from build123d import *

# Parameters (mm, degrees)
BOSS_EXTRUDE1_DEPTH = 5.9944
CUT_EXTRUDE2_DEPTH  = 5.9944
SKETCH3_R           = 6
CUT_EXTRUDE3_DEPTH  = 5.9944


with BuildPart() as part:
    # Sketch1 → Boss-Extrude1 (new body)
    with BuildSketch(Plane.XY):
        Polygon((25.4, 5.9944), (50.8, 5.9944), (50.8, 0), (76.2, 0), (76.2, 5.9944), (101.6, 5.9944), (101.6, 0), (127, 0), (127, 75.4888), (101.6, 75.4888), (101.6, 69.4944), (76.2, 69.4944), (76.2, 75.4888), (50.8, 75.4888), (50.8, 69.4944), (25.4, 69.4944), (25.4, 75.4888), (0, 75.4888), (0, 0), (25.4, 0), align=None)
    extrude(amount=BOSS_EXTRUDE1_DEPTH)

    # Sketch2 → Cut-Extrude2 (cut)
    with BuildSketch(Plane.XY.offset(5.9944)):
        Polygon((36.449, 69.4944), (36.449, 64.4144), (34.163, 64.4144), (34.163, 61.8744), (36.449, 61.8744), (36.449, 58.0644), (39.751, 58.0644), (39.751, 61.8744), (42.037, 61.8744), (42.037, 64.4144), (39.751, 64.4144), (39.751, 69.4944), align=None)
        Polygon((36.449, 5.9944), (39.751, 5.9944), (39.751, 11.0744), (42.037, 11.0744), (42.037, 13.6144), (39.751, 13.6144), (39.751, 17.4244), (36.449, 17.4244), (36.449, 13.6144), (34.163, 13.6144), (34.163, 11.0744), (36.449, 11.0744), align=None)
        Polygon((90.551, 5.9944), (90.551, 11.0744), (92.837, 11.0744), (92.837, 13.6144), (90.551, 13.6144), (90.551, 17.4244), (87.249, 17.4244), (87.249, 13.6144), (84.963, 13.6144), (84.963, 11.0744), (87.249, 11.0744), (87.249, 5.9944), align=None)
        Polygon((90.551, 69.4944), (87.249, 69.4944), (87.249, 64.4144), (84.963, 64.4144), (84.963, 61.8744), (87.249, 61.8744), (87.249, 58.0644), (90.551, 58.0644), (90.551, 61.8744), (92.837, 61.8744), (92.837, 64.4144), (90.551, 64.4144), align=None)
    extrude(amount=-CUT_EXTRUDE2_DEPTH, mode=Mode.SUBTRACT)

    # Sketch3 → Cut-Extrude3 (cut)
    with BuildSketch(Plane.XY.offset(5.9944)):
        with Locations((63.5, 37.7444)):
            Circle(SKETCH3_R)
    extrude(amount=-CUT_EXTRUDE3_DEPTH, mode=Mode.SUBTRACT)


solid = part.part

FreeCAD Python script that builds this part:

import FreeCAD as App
import Part
import Sketcher

V = App.Vector
Q = App.Units.Quantity


def add_polygon(sketch, points):
    """Adds a closed chain of lines whose ends are joined by coincident constraints."""
    first, n = sketch.GeometryCount, len(points)
    for a, b in zip(points, points[1:] + points[:1]):
        sketch.addGeometry(Part.LineSegment(App.Vector(*a, 0), App.Vector(*b, 0)), False)
    for i in range(n):
        sketch.addConstraint(Sketcher.Constraint("Coincident", first + i, 2, first + (i + 1) % n, 1))

doc = App.newDocument("Part")
body = doc.addObject("PartDesign::Body", "Body")

sketch1 = body.newObject("Sketcher::SketchObject", "Sketch")
sketch1.AttachmentSupport = (doc.getObject("XY_Plane"), [""])
sketch1.MapMode = "FlatFace"
add_polygon(sketch1, [(25, 6), (51, 6), (51, 0), (76, 0), (76, 6), (102, 6), (102, 0), (127, 0), (127, 75), (102, 75), (102, 69), (76, 69), (76, 75), (51, 75), (51, 69), (25, 69), (25, 75), (0, 75), (0, 0), (25, 0)])
sketch1.addConstraint([
    Sketcher.Constraint("Horizontal", 0),
    Sketcher.Constraint("Vertical", 1),
    Sketcher.Constraint("Horizontal", 2),
    Sketcher.Constraint("Vertical", 3),
    Sketcher.Constraint("Horizontal", 4),
    Sketcher.Constraint("Vertical", 5),
    Sketcher.Constraint("Horizontal", 6),
    Sketcher.Constraint("Vertical", 7),
    Sketcher.Constraint("Horizontal", 8),
    Sketcher.Constraint("Vertical", 9),
    Sketcher.Constraint("Horizontal", 10),
    Sketcher.Constraint("Vertical", 11),
    Sketcher.Constraint("Horizontal", 12),
    Sketcher.Constraint("Vertical", 13),
    Sketcher.Constraint("Horizontal", 14),
    Sketcher.Constraint("Vertical", 15),
    Sketcher.Constraint("Horizontal", 16),
    Sketcher.Constraint("Vertical", 17),
    Sketcher.Constraint("Horizontal", 18),
    Sketcher.Constraint("Vertical", 19),
    Sketcher.Constraint("Coincident", 17, 2, -1, 1),
    Sketcher.Constraint("PointOnObject", 1, 2, -1),
    Sketcher.Constraint("PointOnObject", 5, 2, -1),
    Sketcher.Constraint("Horizontal", 0, 2, 3, 2),
    Sketcher.Constraint("Horizontal", 8, 2, 11, 2),
    Sketcher.Constraint("Horizontal", 10, 2, 13, 2),
    Sketcher.Constraint("Horizontal", 12, 2, 15, 2),
    Sketcher.Constraint("Vertical", 5, 2, 8, 2),
    Sketcher.Constraint("Vertical", 3, 2, 10, 2),
    Sketcher.Constraint("Vertical", 1, 2, 12, 2),
    Sketcher.Constraint("Vertical", 15, 2, 18, 2),
    Sketcher.Constraint("Equal", 0, 2),
    Sketcher.Constraint("Equal", 2, 4),
    Sketcher.Constraint("Equal", 4, 6),
    Sketcher.Constraint("Equal", 14, 16),
    Sketcher.Constraint("Equal", 5, 9),
    Sketcher.Constraint("DistanceX", 0, 1, 0, 2, Q("1 in")),
    Sketcher.Constraint("DistanceY", 4, 2, 9, 2, Q("2.5 in")),
    Sketcher.Constraint("DistanceY", 1, 2, 1, 1, Q("0.236 in")),
])
pad1 = body.newObject("PartDesign::Pad", "Pad")
pad1.Profile = sketch1
pad1.Length = Q("0.236 in")

sketch2 = body.newObject("Sketcher::SketchObject", "Sketch001")
sketch2.AttachmentSupport = (doc.getObject("XY_Plane"), [""])
sketch2.MapMode = "FlatFace"
sketch2.AttachmentOffset = App.Placement(V(0, 0, 0.236 * 25.4), App.Rotation())
add_polygon(sketch2, [(36.4, 69.5), (36.4, 64.4), (34.2, 64.4), (34.2, 61.9), (36.4, 61.9), (36.4, 58.1), (39.8, 58.1), (39.8, 61.9), (42, 61.9), (42, 64.4), (39.8, 64.4), (39.8, 69.5)])
add_polygon(sketch2, [(36.4, 6), (39.8, 6), (39.8, 11.1), (42, 11.1), (42, 13.6), (39.8, 13.6), (39.8, 17.4), (36.4, 17.4), (36.4, 13.6), (34.2, 13.6), (34.2, 11.1), (36.4, 11.1)])
add_polygon(sketch2, [(90.6, 6), (90.6, 11.1), (92.8, 11.1), (92.8, 13.6), (90.6, 13.6), (90.6, 17.4), (87.2, 17.4), (87.2, 13.6), (85, 13.6), (85, 11.1), (87.2, 11.1), (87.2, 6)])
add_polygon(sketch2, [(90.6, 69.5), (87.2, 69.5), (87.2, 64.4), (85, 64.4), (85, 61.9), (87.2, 61.9), (87.2, 58.1), (90.6, 58.1), (90.6, 61.9), (92.8, 61.9), (92.8, 64.4), (90.6, 64.4)])
sketch2.addConstraint([
    Sketcher.Constraint("Vertical", 0),
    Sketcher.Constraint("Horizontal", 1),
    Sketcher.Constraint("Vertical", 2),
    Sketcher.Constraint("Horizontal", 3),
    Sketcher.Constraint("Vertical", 4),
    Sketcher.Constraint("Horizontal", 5),
    Sketcher.Constraint("Vertical", 6),
    Sketcher.Constraint("Horizontal", 7),
    Sketcher.Constraint("Vertical", 8),
    Sketcher.Constraint("Horizontal", 9),
    Sketcher.Constraint("Vertical", 10),
    Sketcher.Constraint("Horizontal", 11),
    Sketcher.Constraint("Horizontal", 12),
    Sketcher.Constraint("Vertical", 13),
    Sketcher.Constraint("Horizontal", 14),
    Sketcher.Constraint("Vertical", 15),
    Sketcher.Constraint("Horizontal", 16),
    Sketcher.Constraint("Vertical", 17),
    Sketcher.Constraint("Horizontal", 18),
    Sketcher.Constraint("Vertical", 19),
    Sketcher.Constraint("Horizontal", 20),
    Sketcher.Constraint("Vertical", 21),
    Sketcher.Constraint("Horizontal", 22),
    Sketcher.Constraint("Vertical", 23),
    Sketcher.Constraint("Vertical", 24),
    Sketcher.Constraint("Horizontal", 25),
    Sketcher.Constraint("Vertical", 26),
    Sketcher.Constraint("Horizontal", 27),
    Sketcher.Constraint("Vertical", 28),
    Sketcher.Constraint("Horizontal", 29),
    Sketcher.Constraint("Vertical", 30),
    Sketcher.Constraint("Horizontal", 31),
    Sketcher.Constraint("Vertical", 32),
    Sketcher.Constraint("Horizontal", 33),
    Sketcher.Constraint("Vertical", 34),
    Sketcher.Constraint("Horizontal", 35),
    Sketcher.Constraint("Horizontal", 36),
    Sketcher.Constraint("Vertical", 37),
    Sketcher.Constraint("Horizontal", 38),
    Sketcher.Constraint("Vertical", 39),
    Sketcher.Constraint("Horizontal", 40),
    Sketcher.Constraint("Vertical", 41),
    Sketcher.Constraint("Horizontal", 42),
    Sketcher.Constraint("Vertical", 43),
    Sketcher.Constraint("Horizontal", 44),
    Sketcher.Constraint("Vertical", 45),
    Sketcher.Constraint("Horizontal", 46),
    Sketcher.Constraint("Vertical", 47),
    Sketcher.Constraint("Horizontal", 3, 2, 6, 2),
    Sketcher.Constraint("Horizontal", 1, 2, 8, 2),
    Sketcher.Constraint("Horizontal", 16, 2, 19, 2),
    Sketcher.Constraint("Horizontal", 14, 2, 21, 2),
    Sketcher.Constraint("Horizontal", 22, 2, 24, 2),
    Sketcher.Constraint("Horizontal", 20, 2, 26, 2),
    Sketcher.Constraint("Horizontal", 18, 2, 28, 2),
    Sketcher.Constraint("Horizontal", 27, 2, 30, 2),
    Sketcher.Constraint("Horizontal", 25, 2, 32, 2),
    Sketcher.Constraint("Horizontal", 23, 2, 34, 2),
    Sketcher.Constraint("Horizontal", 11, 2, 36, 2),
    Sketcher.Constraint("Horizontal", 9, 2, 37, 2),
    Sketcher.Constraint("Horizontal", 7, 2, 39, 2),
    Sketcher.Constraint("Horizontal", 5, 2, 41, 2),
    Sketcher.Constraint("Horizontal", 40, 2, 43, 2),
    Sketcher.Constraint("Horizontal", 38, 2, 45, 2),
    Sketcher.Constraint("Vertical", 0, 2, 3, 2),
    Sketcher.Constraint("Vertical", 6, 2, 9, 2),
    Sketcher.Constraint("Vertical", 10, 2, 12, 2),
    Sketcher.Constraint("Vertical", 8, 2, 14, 2),
    Sketcher.Constraint("Vertical", 13, 2, 16, 2),
    Sketcher.Constraint("Vertical", 11, 2, 18, 2),
    Sketcher.Constraint("Vertical", 2, 2, 20, 2),
    Sketcher.Constraint("Vertical", 19, 2, 22, 2),
    Sketcher.Constraint("Vertical", 24, 2, 27, 2),
    Sketcher.Constraint("Vertical", 30, 2, 33, 2),
    Sketcher.Constraint("Vertical", 34, 2, 36, 2),
    Sketcher.Constraint("Vertical", 32, 2, 38, 2),
    Sketcher.Constraint("Vertical", 37, 2, 40, 2),
    Sketcher.Constraint("Vertical", 35, 2, 42, 2),
    Sketcher.Constraint("Vertical", 26, 2, 44, 2),
    Sketcher.Constraint("Vertical", 43, 2, 46, 2),
    Sketcher.Constraint("Equal", 3, 7),
    Sketcher.Constraint("Equal", 22, 25),
    Sketcher.Constraint("Equal", 18, 29),
    Sketcher.Constraint("Equal", 27, 31),
    Sketcher.Constraint("Equal", 10, 13),
    Sketcher.Constraint("Equal", 8, 15),
    Sketcher.Constraint("Equal", 6, 17),
    Sketcher.Constraint("DistanceY", 0, 2, 0, 1, Q("0.2 in")),
    Sketcher.Constraint("DistanceY", 2, 2, 2, 1, Q("0.1 in")),
    Sketcher.Constraint("DistanceY", 13, 2, 6, 2, Q("2 in")),
    Sketcher.Constraint("DistanceX", 13, 2, 24, 2, Q("2 in")),
    Sketcher.Constraint("DistanceX", 1, 2, 1, 1, Q("0.09 in")),
    Sketcher.Constraint("DistanceX", 5, 1, 5, 2, Q("0.13 in")),
    Sketcher.Constraint("DistanceY", 4, 2, 4, 1, Q("0.15 in")),
    Sketcher.Constraint("DistanceX", -1, 1, 0, 2, Q("1.435 in")),
    Sketcher.Constraint("DistanceY", -1, 1, 0, 2, Q("2.536 in")),
])
pocket1 = body.newObject("PartDesign::Pocket", "Pocket")
pocket1.Profile = sketch2
pocket1.Length = Q("0.236 in")

sketch3 = body.newObject("Sketcher::SketchObject", "Sketch002")
sketch3.AttachmentSupport = (doc.getObject("XY_Plane"), [""])
sketch3.MapMode = "FlatFace"
sketch3.AttachmentOffset = App.Placement(V(0, 0, 0.236 * 25.4), App.Rotation())
sketch3.addGeometry(Part.Circle(V(64, 38, 0), V(0, 0, 1), 6), False)
sketch3.addConstraint([
    Sketcher.Constraint("DistanceX", -1, 1, 0, 3, Q("2.5 in")),
    Sketcher.Constraint("Diameter", 0, Q("12 mm")),
    Sketcher.Constraint("DistanceY", -1, 1, 0, 3, Q("1.486 in")),
])
pocket2 = body.newObject("PartDesign::Pocket", "Pocket001")
pocket2.Profile = sketch3
pocket2.Length = Q("0.236 in")

doc.recompute()
